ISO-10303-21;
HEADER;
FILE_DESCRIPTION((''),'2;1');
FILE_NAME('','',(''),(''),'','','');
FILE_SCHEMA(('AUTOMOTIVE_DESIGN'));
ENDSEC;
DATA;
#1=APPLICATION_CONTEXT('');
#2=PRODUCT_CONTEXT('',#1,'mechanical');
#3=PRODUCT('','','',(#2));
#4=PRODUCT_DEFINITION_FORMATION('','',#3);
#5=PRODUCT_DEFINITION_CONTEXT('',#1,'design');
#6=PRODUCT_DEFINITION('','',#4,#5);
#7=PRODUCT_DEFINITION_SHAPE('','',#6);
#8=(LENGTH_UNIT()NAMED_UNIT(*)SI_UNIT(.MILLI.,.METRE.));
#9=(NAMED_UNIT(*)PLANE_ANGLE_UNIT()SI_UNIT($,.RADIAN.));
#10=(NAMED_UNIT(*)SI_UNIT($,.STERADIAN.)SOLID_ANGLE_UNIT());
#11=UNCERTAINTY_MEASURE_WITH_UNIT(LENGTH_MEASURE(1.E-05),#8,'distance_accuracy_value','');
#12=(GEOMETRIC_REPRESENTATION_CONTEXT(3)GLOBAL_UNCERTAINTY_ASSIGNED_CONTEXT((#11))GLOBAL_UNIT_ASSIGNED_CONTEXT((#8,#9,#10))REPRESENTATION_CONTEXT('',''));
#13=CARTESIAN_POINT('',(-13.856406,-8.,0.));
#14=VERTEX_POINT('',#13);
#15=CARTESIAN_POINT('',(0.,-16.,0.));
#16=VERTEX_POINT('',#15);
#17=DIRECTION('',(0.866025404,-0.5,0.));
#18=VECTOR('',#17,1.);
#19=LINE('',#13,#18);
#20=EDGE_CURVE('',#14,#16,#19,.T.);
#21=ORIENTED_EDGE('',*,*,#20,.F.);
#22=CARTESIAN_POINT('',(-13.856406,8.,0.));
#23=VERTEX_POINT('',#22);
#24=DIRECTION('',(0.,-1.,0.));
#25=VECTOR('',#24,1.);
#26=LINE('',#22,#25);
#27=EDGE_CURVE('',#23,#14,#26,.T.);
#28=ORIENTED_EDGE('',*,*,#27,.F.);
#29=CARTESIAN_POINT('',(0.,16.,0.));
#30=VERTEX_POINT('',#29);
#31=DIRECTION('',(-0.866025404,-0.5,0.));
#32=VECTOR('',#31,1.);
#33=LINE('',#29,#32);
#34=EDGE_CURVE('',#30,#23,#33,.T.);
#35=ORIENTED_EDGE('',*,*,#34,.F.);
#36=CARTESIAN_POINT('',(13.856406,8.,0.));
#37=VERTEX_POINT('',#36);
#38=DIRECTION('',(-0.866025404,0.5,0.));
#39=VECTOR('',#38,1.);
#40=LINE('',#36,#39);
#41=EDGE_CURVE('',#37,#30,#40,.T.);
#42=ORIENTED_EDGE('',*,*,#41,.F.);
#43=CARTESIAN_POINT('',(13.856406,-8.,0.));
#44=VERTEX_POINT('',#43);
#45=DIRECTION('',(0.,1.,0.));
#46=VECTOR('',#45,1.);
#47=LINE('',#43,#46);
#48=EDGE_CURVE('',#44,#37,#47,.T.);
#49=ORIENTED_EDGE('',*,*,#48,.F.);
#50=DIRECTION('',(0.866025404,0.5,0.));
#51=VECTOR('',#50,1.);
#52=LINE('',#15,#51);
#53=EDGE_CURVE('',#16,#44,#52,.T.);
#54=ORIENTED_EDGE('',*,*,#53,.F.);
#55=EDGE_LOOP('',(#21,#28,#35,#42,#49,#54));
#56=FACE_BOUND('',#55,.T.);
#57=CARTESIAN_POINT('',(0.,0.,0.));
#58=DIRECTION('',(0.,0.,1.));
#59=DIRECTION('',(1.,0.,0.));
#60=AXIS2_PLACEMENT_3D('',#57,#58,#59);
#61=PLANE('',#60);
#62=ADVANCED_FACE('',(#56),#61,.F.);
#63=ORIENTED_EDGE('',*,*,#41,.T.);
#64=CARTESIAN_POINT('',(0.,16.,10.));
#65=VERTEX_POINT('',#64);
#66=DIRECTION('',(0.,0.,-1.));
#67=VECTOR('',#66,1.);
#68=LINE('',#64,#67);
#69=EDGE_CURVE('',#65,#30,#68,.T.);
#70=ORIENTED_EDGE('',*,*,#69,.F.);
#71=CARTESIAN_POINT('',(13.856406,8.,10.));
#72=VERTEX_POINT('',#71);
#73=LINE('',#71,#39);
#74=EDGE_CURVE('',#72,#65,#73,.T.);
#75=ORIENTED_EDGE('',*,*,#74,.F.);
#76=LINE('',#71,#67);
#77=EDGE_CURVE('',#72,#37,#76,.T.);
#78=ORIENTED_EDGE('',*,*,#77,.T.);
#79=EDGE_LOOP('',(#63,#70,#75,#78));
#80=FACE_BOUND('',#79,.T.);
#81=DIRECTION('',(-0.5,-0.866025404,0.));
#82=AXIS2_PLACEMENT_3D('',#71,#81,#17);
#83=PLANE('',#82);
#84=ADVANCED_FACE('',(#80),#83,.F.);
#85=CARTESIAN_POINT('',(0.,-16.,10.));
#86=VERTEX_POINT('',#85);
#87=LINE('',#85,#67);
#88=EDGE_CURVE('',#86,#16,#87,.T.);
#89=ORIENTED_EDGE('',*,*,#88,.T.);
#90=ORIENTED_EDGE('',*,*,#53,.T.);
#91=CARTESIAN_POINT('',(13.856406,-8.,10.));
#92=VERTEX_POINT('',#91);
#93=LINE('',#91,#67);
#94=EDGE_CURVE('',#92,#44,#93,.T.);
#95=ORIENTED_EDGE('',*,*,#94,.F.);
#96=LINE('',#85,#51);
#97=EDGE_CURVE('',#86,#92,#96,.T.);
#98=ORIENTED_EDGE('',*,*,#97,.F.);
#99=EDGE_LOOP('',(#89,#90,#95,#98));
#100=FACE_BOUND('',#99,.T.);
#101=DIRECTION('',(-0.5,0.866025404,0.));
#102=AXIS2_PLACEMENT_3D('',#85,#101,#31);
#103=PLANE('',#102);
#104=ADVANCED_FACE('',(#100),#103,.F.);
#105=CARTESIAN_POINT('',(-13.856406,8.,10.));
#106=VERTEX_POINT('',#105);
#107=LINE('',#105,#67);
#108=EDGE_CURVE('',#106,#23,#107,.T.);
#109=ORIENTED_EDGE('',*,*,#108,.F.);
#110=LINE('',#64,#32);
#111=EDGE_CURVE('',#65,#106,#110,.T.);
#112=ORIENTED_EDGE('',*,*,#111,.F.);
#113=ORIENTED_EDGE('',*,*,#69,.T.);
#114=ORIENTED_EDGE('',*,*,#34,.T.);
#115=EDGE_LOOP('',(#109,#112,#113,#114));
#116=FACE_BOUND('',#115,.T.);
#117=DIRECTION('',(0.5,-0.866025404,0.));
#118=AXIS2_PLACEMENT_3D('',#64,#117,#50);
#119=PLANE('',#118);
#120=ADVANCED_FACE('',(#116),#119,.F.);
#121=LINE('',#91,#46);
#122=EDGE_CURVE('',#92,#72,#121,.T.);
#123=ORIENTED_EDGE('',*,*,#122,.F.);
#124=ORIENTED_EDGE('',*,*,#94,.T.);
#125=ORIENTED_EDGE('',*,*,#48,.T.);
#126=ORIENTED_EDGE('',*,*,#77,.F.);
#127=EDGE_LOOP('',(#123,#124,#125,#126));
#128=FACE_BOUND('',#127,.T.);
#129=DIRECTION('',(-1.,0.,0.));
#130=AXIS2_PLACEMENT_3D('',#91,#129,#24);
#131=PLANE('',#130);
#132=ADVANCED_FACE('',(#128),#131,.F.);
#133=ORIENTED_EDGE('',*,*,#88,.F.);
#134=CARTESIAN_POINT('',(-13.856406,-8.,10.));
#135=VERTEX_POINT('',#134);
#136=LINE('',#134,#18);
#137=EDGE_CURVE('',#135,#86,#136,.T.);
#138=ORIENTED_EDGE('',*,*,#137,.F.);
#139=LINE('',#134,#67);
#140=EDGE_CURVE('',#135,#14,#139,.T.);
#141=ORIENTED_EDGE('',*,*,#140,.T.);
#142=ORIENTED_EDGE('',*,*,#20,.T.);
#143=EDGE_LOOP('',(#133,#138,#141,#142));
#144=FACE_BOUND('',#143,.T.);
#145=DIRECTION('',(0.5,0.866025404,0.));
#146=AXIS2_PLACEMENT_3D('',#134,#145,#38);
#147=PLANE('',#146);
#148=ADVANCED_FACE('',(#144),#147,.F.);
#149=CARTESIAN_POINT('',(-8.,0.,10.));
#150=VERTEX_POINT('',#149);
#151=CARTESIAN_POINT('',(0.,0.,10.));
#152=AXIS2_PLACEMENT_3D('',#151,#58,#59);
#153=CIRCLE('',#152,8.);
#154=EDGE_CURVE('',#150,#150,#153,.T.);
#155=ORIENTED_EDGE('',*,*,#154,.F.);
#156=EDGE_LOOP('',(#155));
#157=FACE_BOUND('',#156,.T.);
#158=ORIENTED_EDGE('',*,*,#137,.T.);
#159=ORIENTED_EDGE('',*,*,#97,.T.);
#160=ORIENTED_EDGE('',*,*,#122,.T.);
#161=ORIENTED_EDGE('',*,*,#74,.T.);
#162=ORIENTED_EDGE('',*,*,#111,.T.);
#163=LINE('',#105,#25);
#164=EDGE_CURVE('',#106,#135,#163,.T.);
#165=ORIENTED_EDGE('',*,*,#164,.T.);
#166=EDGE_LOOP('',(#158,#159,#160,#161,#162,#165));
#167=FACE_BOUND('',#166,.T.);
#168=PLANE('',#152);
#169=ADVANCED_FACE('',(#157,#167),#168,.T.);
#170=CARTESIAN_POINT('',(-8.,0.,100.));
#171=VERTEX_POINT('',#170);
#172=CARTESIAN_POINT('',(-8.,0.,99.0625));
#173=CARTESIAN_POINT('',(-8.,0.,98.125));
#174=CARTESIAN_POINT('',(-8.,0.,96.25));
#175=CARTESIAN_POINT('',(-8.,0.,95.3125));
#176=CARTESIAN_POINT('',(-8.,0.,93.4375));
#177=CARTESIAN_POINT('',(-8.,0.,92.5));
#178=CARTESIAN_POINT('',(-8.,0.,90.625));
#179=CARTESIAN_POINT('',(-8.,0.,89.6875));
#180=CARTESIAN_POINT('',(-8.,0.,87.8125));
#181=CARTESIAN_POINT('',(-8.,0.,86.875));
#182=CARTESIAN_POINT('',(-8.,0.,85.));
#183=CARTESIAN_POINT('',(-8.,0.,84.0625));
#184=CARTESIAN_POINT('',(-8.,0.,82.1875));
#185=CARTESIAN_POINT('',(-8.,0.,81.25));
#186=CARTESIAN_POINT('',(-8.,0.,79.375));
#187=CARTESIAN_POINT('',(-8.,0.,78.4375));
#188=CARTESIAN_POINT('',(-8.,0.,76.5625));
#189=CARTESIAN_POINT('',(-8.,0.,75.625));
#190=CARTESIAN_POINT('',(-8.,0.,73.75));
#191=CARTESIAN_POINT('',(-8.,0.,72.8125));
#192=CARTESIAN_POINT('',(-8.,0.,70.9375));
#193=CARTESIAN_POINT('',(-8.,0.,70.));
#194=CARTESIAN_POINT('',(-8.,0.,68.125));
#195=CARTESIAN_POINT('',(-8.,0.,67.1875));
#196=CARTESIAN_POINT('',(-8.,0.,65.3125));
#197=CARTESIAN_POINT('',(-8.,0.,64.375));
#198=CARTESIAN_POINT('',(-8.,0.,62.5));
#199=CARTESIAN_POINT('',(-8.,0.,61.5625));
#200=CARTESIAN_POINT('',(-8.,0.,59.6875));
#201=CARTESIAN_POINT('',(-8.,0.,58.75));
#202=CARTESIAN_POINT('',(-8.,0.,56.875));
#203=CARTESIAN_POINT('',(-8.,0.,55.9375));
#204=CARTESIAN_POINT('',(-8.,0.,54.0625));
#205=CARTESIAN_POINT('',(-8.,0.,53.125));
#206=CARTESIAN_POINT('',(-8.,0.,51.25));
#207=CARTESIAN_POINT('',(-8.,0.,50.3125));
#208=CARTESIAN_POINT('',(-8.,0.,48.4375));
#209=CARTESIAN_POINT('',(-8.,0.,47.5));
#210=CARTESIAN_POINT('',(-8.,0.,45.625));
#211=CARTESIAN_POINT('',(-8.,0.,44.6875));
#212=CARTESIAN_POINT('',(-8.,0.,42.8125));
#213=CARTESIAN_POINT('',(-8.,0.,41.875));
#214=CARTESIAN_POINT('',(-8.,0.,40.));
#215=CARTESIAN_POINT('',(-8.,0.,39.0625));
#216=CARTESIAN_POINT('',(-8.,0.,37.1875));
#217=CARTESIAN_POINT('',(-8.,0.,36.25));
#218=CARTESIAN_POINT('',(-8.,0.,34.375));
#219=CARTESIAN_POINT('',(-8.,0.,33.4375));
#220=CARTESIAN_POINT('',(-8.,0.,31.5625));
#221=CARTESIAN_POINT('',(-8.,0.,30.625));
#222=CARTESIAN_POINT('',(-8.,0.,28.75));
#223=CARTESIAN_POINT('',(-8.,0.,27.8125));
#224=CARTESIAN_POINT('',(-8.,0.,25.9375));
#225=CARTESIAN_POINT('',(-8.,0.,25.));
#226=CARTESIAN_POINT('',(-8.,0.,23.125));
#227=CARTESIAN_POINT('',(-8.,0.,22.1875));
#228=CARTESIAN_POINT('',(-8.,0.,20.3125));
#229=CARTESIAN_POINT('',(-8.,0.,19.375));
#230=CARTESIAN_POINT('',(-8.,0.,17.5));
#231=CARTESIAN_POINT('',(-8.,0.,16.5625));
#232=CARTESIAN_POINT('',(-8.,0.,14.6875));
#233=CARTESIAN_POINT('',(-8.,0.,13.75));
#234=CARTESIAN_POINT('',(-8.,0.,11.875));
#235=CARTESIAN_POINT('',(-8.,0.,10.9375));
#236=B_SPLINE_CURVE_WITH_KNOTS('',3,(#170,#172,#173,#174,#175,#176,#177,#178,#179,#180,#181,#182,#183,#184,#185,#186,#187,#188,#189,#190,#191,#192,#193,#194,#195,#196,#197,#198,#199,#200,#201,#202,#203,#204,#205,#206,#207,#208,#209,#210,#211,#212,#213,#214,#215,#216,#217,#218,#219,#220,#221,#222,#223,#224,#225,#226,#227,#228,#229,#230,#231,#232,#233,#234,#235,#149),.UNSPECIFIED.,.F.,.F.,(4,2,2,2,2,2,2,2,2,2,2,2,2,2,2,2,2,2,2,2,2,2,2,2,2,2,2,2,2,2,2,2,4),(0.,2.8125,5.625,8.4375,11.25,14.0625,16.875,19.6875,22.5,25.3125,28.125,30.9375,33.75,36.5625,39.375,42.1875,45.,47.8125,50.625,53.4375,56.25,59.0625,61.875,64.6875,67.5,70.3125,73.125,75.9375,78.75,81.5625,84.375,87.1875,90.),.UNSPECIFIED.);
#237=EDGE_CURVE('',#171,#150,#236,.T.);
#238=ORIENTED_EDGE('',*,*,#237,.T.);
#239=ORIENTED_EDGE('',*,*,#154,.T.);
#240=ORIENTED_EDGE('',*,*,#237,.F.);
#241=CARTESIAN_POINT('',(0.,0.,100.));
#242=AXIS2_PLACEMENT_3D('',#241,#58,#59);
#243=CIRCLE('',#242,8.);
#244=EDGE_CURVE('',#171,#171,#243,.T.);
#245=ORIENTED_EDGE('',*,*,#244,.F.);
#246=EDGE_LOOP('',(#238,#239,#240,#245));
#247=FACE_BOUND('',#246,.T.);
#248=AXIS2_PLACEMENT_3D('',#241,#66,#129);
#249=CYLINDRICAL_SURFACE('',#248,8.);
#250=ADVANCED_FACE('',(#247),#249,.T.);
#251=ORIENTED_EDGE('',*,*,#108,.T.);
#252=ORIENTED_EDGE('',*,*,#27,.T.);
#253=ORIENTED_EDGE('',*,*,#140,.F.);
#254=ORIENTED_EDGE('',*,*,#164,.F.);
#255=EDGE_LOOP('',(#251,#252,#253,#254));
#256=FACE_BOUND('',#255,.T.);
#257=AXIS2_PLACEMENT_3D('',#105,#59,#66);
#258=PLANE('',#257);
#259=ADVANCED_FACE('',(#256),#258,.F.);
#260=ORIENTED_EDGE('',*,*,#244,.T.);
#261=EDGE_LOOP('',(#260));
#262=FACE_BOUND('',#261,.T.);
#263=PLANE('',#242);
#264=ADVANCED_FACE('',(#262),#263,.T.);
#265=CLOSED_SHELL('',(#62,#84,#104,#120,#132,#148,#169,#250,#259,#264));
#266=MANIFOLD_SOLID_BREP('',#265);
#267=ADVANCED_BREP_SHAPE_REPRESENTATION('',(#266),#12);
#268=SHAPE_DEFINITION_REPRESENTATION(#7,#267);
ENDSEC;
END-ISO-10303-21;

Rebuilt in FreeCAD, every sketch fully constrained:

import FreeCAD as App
import Part
import Sketcher
from FreeCAD import Vector
Q = App.Units.Quantity

doc = App.newDocument("Part")
params = doc.addObject("Spreadsheet::Sheet", "Params")
for row, (alias, value) in enumerate([
    ("sketch1_height", "16 mm"),
    ("sketch1_length", "16 mm"),
    ("pad1_length", "10 mm"),
    ("sketch2_diameter", "16 mm"),
    ("pad2_length", "90 mm"),
], start=1):
    params.set(f"A{row}", alias)
    params.set(f"B{row}", "=" + value)
    params.setAlias(f"B{row}", alias)

body = doc.addObject("PartDesign::Body", "Body")

# Sketch on XY plane
sketch1 = doc.addObject("Sketcher::SketchObject", "Sketch")
body.addObject(sketch1)
sketch1.AttachmentSupport = (doc.XY_Plane, [""])
sketch1.MapMode = "FlatFace"
sketch1.addGeometry(Part.LineSegment(Vector(14, 8, 0), Vector(0, 16, 0)), False)
sketch1.addGeometry(Part.LineSegment(Vector(0, 16, 0), Vector(-14, 8, 0)), False)
sketch1.addGeometry(Part.LineSegment(Vector(-14, 8, 0), Vector(-14, -8, 0)), False)
sketch1.addGeometry(Part.LineSegment(Vector(-14, -8, 0), Vector(0, -16, 0)), False)
sketch1.addGeometry(Part.LineSegment(Vector(0, -16, 0), Vector(14, -8, 0)), False)
sketch1.addGeometry(Part.LineSegment(Vector(14, -8, 0), Vector(14, 8, 0)), False)
sketch1.addConstraint(Sketcher.Constraint("Coincident", 0, 2, 1, 1))
sketch1.addConstraint(Sketcher.Constraint("Coincident", 1, 2, 2, 1))
sketch1.addConstraint(Sketcher.Constraint("Coincident", 2, 2, 3, 1))
sketch1.addConstraint(Sketcher.Constraint("Coincident", 3, 2, 4, 1))
sketch1.addConstraint(Sketcher.Constraint("Coincident", 4, 2, 5, 1))
sketch1.addConstraint(Sketcher.Constraint("Coincident", 5, 2, 0, 1))
sketch1.addConstraint(Sketcher.Constraint("Vertical", 2))
sketch1.addConstraint(Sketcher.Constraint("Vertical", 5))
sketch1.addConstraint(Sketcher.Constraint("Symmetric", 0, 2, 3, 2, -1, 1))
sketch1.addConstraint(Sketcher.Constraint("Symmetric", 1, 2, 4, 2, -1, 1))
sketch1.addConstraint(Sketcher.Constraint("PointOnObject", 0, 2, -2))
sketch1.addConstraint(Sketcher.Constraint("Parallel", 0, 3))
sketch1.addConstraint(Sketcher.Constraint("Horizontal", 2, 2, 4, 2))
sketch1.addConstraint(Sketcher.Constraint("DistanceY", 2, 2, 2, 1, 16.0))
sketch1.addConstraint(Sketcher.Constraint("Angle", 0, Q("150 deg")))
sketch1.addConstraint(Sketcher.Constraint("Distance", 0, 16.0))
sketch1.setExpression("Constraints[13]", "Params.sketch1_height")
sketch1.setExpression("Constraints[15]", "Params.sketch1_length")
pad1 = doc.addObject("PartDesign::Pad", "Pad")
body.addObject(pad1)
pad1.Profile = sketch1
pad1.setExpression("Length", "Params.pad1_length")

# Sketch on XY plane
sketch2 = doc.addObject("Sketcher::SketchObject", "Sketch001")
body.addObject(sketch2)
sketch2.AttachmentSupport = (doc.XY_Plane, [""])
sketch2.MapMode = "FlatFace"
sketch2.AttachmentOffset = App.Placement(Vector(0, 0, 10), App.Rotation())
sketch2.addGeometry(Part.Circle(Vector(0, 0, 0), Vector(0, 0, 1), 8), False)
sketch2.addConstraint(Sketcher.Constraint("Coincident", 0, 3, -1, 1))
sketch2.addConstraint(Sketcher.Constraint("Diameter", 0, 16.0))
sketch2.setExpression("Constraints[1]", "Params.sketch2_diameter")
pad2 = doc.addObject("PartDesign::Pad", "Pad001")
body.addObject(pad2)
pad2.Profile = sketch2
pad2.setExpression("Length", "Params.pad2_length")

doc.recompute()
